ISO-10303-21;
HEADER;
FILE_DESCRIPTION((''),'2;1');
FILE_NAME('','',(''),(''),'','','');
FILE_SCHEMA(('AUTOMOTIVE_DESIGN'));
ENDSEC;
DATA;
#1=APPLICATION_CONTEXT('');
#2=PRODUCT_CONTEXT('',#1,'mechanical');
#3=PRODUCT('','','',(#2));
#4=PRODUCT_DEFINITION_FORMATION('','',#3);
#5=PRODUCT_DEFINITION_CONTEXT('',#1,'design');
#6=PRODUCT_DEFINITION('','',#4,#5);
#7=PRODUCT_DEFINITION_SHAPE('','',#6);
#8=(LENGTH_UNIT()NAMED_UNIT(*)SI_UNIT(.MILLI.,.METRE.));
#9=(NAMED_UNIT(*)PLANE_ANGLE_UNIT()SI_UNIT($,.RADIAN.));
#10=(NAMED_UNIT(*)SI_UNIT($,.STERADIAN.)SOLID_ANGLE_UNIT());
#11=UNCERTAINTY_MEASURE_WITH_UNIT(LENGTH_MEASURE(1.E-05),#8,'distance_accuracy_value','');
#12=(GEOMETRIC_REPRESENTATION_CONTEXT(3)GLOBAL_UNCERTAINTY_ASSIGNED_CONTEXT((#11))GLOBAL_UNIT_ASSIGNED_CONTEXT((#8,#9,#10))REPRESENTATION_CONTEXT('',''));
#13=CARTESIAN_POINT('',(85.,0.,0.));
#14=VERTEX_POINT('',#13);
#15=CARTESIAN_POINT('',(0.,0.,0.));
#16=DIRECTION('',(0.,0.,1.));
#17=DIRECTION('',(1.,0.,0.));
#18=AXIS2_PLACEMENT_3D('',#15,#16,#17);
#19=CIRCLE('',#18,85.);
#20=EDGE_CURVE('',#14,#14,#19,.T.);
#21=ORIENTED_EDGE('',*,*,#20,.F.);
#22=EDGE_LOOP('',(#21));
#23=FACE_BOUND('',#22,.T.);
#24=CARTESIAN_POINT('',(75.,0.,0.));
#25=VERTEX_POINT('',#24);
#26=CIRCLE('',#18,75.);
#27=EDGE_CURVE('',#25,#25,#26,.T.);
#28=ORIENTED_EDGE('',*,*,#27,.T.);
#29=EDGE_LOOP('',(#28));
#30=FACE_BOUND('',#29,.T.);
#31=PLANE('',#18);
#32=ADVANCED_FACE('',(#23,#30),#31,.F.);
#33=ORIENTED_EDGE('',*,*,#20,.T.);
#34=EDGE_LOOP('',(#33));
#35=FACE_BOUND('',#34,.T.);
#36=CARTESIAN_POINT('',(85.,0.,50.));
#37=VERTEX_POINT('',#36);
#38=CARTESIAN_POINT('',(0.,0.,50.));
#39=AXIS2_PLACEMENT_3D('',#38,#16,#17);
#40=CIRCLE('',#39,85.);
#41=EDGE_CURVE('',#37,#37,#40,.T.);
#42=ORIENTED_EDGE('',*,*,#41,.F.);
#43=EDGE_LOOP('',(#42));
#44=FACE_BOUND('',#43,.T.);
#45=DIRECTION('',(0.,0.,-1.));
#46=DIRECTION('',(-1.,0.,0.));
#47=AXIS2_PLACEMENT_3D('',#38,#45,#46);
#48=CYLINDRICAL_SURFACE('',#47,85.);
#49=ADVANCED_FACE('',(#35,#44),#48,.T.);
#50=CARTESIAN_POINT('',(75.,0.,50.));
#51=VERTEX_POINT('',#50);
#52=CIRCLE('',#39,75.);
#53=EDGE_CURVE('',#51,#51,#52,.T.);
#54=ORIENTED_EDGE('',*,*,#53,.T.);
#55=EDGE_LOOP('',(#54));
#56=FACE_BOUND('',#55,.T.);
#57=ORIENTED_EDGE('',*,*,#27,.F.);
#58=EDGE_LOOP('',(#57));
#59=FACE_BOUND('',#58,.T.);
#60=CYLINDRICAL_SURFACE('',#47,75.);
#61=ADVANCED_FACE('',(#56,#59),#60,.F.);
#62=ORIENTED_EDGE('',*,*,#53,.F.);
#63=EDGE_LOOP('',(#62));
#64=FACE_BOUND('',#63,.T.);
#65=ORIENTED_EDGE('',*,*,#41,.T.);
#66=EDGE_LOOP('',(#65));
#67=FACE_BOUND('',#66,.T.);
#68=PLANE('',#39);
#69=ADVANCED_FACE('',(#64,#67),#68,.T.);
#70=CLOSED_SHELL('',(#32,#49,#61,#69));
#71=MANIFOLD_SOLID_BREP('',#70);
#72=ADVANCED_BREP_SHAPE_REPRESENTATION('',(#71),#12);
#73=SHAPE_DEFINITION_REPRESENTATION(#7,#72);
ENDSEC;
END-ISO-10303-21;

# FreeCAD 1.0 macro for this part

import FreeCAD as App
import Part
import Sketcher
Q = App.Units.Quantity

doc = App.newDocument("Part")
body = doc.addObject("PartDesign::Body", "Body")

# Sketch on XY plane
sketch1 = doc.addObject("Sketcher::SketchObject", "Sketch")
body.addObject(sketch1)
sketch1.AttachmentSupport = (doc.XY_Plane, [""])
sketch1.MapMode = "FlatFace"
sketch1.addGeometry(Part.Circle(App.Vector(0, 0, 0), App.Vector(0, 0, 1), 85), False)
sketch1.addGeometry(Part.Circle(App.Vector(0, 0, 0), App.Vector(0, 0, 1), 75), False)
sketch1.addConstraint(Sketcher.Constraint("Coincident", 0, 3, -1, 1))
sketch1.addConstraint(Sketcher.Constraint("Coincident", 1, 3, -1, 1))
sketch1.addConstraint(Sketcher.Constraint("Diameter", 0, Q("170 mm")))
sketch1.addConstraint(Sketcher.Constraint("Diameter", 1, Q("150 mm")))
pad1 = doc.addObject("PartDesign::Pad", "Pad")
body.addObject(pad1)
pad1.Profile = sketch1
pad1.Length = 50

doc.recompute()
